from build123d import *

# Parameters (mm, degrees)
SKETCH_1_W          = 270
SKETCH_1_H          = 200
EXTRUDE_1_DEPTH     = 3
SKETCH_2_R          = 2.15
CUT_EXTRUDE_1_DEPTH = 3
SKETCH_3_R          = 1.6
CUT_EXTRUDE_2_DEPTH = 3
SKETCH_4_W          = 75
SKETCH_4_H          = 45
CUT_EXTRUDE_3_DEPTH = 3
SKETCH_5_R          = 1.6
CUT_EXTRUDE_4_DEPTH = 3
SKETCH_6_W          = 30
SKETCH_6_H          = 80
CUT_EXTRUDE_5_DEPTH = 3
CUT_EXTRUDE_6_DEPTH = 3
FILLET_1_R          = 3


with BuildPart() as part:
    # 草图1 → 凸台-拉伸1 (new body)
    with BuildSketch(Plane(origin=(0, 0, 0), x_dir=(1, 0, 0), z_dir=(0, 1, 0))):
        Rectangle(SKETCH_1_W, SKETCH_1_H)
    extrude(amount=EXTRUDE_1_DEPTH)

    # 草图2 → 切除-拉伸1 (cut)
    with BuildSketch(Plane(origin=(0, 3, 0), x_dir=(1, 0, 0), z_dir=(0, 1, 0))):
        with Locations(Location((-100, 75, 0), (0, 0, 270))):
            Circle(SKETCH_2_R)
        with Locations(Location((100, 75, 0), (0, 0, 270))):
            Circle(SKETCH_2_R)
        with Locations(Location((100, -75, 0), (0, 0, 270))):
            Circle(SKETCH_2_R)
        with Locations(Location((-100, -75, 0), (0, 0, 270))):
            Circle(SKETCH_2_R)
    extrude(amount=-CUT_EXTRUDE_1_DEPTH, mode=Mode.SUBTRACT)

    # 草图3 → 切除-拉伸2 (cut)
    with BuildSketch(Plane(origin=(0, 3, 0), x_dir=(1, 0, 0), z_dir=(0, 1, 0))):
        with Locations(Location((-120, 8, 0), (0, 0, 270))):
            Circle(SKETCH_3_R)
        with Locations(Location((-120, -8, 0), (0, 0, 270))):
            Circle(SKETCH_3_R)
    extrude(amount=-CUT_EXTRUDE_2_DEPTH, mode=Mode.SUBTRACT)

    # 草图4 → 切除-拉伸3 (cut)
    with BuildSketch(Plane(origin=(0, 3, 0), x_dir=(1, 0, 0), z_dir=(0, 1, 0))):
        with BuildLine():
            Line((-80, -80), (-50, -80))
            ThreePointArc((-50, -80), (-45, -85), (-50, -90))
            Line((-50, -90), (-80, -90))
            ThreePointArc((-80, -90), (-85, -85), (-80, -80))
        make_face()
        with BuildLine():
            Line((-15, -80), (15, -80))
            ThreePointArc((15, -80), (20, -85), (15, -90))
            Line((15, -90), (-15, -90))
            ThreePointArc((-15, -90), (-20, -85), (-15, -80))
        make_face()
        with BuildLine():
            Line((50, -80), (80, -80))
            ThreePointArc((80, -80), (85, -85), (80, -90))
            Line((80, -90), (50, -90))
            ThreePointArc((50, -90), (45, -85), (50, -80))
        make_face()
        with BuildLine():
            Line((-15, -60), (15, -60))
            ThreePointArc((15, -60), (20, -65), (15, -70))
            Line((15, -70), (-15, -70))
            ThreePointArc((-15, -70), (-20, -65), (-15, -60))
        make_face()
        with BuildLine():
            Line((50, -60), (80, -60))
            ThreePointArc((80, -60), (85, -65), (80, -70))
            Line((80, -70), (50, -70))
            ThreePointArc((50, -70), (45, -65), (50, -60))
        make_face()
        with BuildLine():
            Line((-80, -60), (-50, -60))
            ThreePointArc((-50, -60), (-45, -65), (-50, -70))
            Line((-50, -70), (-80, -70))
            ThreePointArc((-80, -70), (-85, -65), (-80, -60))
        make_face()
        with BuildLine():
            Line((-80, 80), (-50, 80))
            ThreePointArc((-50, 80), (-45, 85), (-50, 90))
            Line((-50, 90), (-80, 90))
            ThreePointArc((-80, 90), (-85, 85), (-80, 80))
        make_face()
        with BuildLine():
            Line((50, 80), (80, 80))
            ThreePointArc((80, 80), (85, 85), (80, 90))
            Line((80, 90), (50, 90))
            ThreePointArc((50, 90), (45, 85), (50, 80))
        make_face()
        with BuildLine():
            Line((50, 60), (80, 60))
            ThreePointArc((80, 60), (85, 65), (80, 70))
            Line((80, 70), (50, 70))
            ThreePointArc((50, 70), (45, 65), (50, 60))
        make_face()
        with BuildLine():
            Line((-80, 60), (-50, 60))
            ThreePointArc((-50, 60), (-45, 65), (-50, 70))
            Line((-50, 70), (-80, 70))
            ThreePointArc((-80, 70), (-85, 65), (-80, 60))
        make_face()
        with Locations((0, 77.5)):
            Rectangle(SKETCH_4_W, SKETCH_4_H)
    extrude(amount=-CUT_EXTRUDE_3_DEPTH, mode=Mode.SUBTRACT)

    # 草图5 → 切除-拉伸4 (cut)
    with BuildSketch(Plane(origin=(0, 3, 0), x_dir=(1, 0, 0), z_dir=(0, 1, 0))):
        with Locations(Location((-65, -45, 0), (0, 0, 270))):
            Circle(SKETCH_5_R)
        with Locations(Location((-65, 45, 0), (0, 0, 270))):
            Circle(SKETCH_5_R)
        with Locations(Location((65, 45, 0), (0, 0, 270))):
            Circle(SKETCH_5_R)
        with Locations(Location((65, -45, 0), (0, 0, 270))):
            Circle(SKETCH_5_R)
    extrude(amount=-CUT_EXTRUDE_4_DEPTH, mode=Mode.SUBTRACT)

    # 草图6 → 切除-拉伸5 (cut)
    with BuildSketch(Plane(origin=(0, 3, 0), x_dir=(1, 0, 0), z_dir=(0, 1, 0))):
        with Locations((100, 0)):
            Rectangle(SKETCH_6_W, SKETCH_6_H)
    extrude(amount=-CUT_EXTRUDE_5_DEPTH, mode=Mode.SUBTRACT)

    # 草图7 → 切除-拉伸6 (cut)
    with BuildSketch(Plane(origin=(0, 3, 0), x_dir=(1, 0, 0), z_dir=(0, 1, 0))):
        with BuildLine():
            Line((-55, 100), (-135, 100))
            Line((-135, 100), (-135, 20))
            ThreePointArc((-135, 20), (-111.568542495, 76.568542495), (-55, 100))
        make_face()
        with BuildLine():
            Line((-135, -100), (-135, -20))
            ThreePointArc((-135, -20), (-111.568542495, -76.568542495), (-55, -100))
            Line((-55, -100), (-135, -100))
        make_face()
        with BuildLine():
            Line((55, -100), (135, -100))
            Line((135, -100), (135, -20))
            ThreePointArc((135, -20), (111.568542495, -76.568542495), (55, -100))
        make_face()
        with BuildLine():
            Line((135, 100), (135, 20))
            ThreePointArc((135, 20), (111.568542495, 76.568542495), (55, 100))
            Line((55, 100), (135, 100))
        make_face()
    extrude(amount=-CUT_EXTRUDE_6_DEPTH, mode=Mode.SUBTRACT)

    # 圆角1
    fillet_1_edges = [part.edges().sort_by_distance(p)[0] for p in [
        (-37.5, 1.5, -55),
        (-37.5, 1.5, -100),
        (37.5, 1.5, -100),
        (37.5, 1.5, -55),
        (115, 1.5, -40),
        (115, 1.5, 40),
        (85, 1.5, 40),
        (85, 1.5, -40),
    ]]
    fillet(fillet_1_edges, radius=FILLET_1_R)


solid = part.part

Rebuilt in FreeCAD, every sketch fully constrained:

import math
import FreeCAD as App
import Part
import Sketcher
from FreeCAD import Vector


def edges_at(feature, points):
    """Names of the edges that pass closest to the given points."""
    edges = feature.Shape.Edges
    near = lambda p: min(range(len(edges)), key=lambda i: edges[i].distToShape(Part.Vertex(*p))[0])
    return sorted({f"Edge{near(p) + 1}" for p in points})

doc = App.newDocument("Part")
body = doc.addObject("PartDesign::Body", "Body")

sketch1 = body.newObject("Sketcher::SketchObject", "Sketch")
sketch1.AttachmentSupport = (doc.getObject("XZ_Plane"), [""])
sketch1.MapMode = "FlatFace"
sketch1.addGeometry([
    Part.LineSegment(Vector(-135, -100, 0), Vector(-135, 100, 0)),
    Part.LineSegment(Vector(-135, 100, 0), Vector(135, 100, 0)),
    Part.LineSegment(Vector(135, 100, 0), Vector(135, -100, 0)),
    Part.LineSegment(Vector(135, -100, 0), Vector(-135, -100, 0)),
], False)
sketch1.addConstraint([
    Sketcher.Constraint("Coincident", 0, 2, 1, 1),
    Sketcher.Constraint("Coincident", 1, 2, 2, 1),
    Sketcher.Constraint("Coincident", 2, 2, 3, 1),
    Sketcher.Constraint("Coincident", 3, 2, 0, 1),
    Sketcher.Constraint("Vertical", 0),
    Sketcher.Constraint("Horizontal", 1),
    Sketcher.Constraint("Vertical", 2),
    Sketcher.Constraint("Horizontal", 3),
    Sketcher.Constraint("Symmetric", 0, 2, 2, 2, -1, 1),
    Sketcher.Constraint("DistanceX", 1, 1, 1, 2, 270.0),
    Sketcher.Constraint("DistanceY", 0, 1, 0, 2, 200.0),
])
pad1 = body.newObject("PartDesign::Pad", "Pad")
pad1.Profile = sketch1
pad1.Length = 3
pad1.Reversed = True

sketch2 = body.newObject("Sketcher::SketchObject", "Sketch001")
sketch2.AttachmentSupport = (doc.getObject("XZ_Plane"), [""])
sketch2.MapMode = "FlatFace"
sketch2.AttachmentOffset = App.Placement(Vector(0, 0, -3), App.Rotation())
sketch2.addGeometry([
    Part.Circle(Vector(-100, -75, 0), Vector(0, 0, 1), 2.1),
    Part.Circle(Vector(100, -75, 0), Vector(0, 0, 1), 2.1),
    Part.Circle(Vector(100, 75, 0), Vector(0, 0, 1), 2.1),
    Part.Circle(Vector(-100, 75, 0), Vector(0, 0, 1), 2.1),
], False)
sketch2.addConstraint([
    Sketcher.Constraint("Equal", 0, 1),
    Sketcher.Constraint("Equal", 1, 2),
    Sketcher.Constraint("Equal", 2, 3),
    Sketcher.Constraint("Symmetric", 0, 3, 2, 3, -1, 1),
    Sketcher.Constraint("Symmetric", 1, 3, 3, 3, -1, 1),
    Sketcher.Constraint("Symmetric", 0, 3, 1, 3, -2),
    Sketcher.Constraint("Diameter", 0, 4.3),
    Sketcher.Constraint("DistanceX", 0, 3, -1, 1, 100.0),
    Sketcher.Constraint("DistanceY", 0, 3, -1, 1, 75.0),
])
pocket1 = body.newObject("PartDesign::Pocket", "Pocket")
pocket1.Profile = sketch2
pocket1.Length = 3
pocket1.Reversed = True

sketch3 = body.newObject("Sketcher::SketchObject", "Sketch002")
sketch3.AttachmentSupport = (doc.getObject("XZ_Plane"), [""])
sketch3.MapMode = "FlatFace"
sketch3.AttachmentOffset = App.Placement(Vector(0, 0, -3), App.Rotation())
sketch3.addGeometry([
    Part.Circle(Vector(-120, -8, 0), Vector(0, 0, 1), 1.6),
    Part.Circle(Vector(-120, 8, 0), Vector(0, 0, 1), 1.6),
], False)
sketch3.addConstraint([
    Sketcher.Constraint("Equal", 0, 1),
    Sketcher.Constraint("Symmetric", 0, 3, 1, 3, -1),
    Sketcher.Constraint("Diameter", 0, 3.2),
    Sketcher.Constraint("DistanceX", 0, 3, -1, 1, 120.0),
    Sketcher.Constraint("DistanceY", 0, 3, -1, 1, 8.0),
])
pocket2 = body.newObject("PartDesign::Pocket", "Pocket001")
pocket2.Profile = sketch3
pocket2.Length = 3
pocket2.Reversed = True

sketch4 = body.newObject("Sketcher::SketchObject", "Sketch003")
sketch4.AttachmentSupport = (doc.getObject("XZ_Plane"), [""])
sketch4.MapMode = "FlatFace"
sketch4.AttachmentOffset = App.Placement(Vector(0, 0, -3), App.Rotation())
sketch4.addGeometry([
    Part.LineSegment(Vector(-50, 80, 0), Vector(-80, 80, 0)),
    Part.ArcOfCircle(Part.Circle(Vector(-80, 85, 0), Vector(0, 0, 1), 5), math.radians(90), math.radians(270)),
    Part.LineSegment(Vector(-80, 90, 0), Vector(-50, 90, 0)),
    Part.ArcOfCircle(Part.Circle(Vector(-50, 85, 0), Vector(0, 0, 1), 5), math.radians(-90), math.radians(90)),
    Part.LineSegment(Vector(15, 80, 0), Vector(-15, 80, 0)),
    Part.ArcOfCircle(Part.Circle(Vector(-15, 85, 0), Vector(0, 0, 1), 5), math.radians(90), math.radians(270)),
    Part.LineSegment(Vector(-15, 90, 0), Vector(15, 90, 0)),
    Part.ArcOfCircle(Part.Circle(Vector(15, 85, 0), Vector(0, 0, 1), 5), math.radians(-90), math.radians(90)),
    Part.LineSegment(Vector(80, 80, 0), Vector(50, 80, 0)),
    Part.ArcOfCircle(Part.Circle(Vector(50, 85, 0), Vector(0, 0, 1), 5), math.radians(90), math.radians(270)),
    Part.LineSegment(Vector(50, 90, 0), Vector(80, 90, 0)),
    Part.ArcOfCircle(Part.Circle(Vector(80, 85, 0), Vector(0, 0, 1), 5), math.radians(-90), math.radians(90)),
    Part.LineSegment(Vector(15, 60, 0), Vector(-15, 60, 0)),
    Part.ArcOfCircle(Part.Circle(Vector(-15, 65, 0), Vector(0, 0, 1), 5), math.radians(90), math.radians(270)),
    Part.LineSegment(Vector(-15, 70, 0), Vector(15, 70, 0)),
    Part.ArcOfCircle(Part.Circle(Vector(15, 65, 0), Vector(0, 0, 1), 5), math.radians(-90), math.radians(90)),
    Part.LineSegment(Vector(80, 60, 0), Vector(50, 60, 0)),
    Part.ArcOfCircle(Part.Circle(Vector(50, 65, 0), Vector(0, 0, 1), 5), math.radians(90), math.radians(270)),
    Part.LineSegment(Vector(50, 70, 0), Vector(80, 70, 0)),
    Part.ArcOfCircle(Part.Circle(Vector(80, 65, 0), Vector(0, 0, 1), 5), math.radians(-90), math.radians(90)),
    Part.LineSegment(Vector(-50, 60, 0), Vector(-80, 60, 0)),
    Part.ArcOfCircle(Part.Circle(Vector(-80, 65, 0), Vector(0, 0, 1), 5), math.radians(90), math.radians(270)),
    Part.LineSegment(Vector(-80, 70, 0), Vector(-50, 70, 0)),
    Part.ArcOfCircle(Part.Circle(Vector(-50, 65, 0), Vector(0, 0, 1), 5), math.radians(-90), math.radians(90)),
    Part.LineSegment(Vector(-80, -80, 0), Vector(-50, -80, 0)),
    Part.ArcOfCircle(Part.Circle(Vector(-50, -85, 0), Vector(0, 0, 1), 5), math.radians(-90), math.radians(90)),
    Part.LineSegment(Vector(-50, -90, 0), Vector(-80, -90, 0)),
    Part.ArcOfCircle(Part.Circle(Vector(-80, -85, 0), Vector(0, 0, 1), 5), math.radians(90), math.radians(270)),
    Part.LineSegment(Vector(50, -80, 0), Vector(80, -80, 0)),
    Part.ArcOfCircle(Part.Circle(Vector(80, -85, 0), Vector(0, 0, 1), 5), math.radians(-90), math.radians(90)),
    Part.LineSegment(Vector(80, -90, 0), Vector(50, -90, 0)),
    Part.ArcOfCircle(Part.Circle(Vector(50, -85, 0), Vector(0, 0, 1), 5), math.radians(90), math.radians(270)),
    Part.LineSegment(Vector(50, -60, 0), Vector(80, -60, 0)),
    Part.ArcOfCircle(Part.Circle(Vector(80, -65, 0), Vector(0, 0, 1), 5), math.radians(-90), math.radians(90)),
    Part.LineSegment(Vector(80, -70, 0), Vector(50, -70, 0)),
    Part.ArcOfCircle(Part.Circle(Vector(50, -65, 0), Vector(0, 0, 1), 5), math.radians(90), math.radians(270)),
    Part.LineSegment(Vector(-80, -60, 0), Vector(-50, -60, 0)),
    Part.ArcOfCircle(Part.Circle(Vector(-50, -65, 0), Vector(0, 0, 1), 5), math.radians(-90), math.radians(90)),
    Part.LineSegment(Vector(-50, -70, 0), Vector(-80, -70, 0)),
    Part.ArcOfCircle(Part.Circle(Vector(-80, -65, 0), Vector(0, 0, 1), 5), math.radians(90), math.radians(270)),
    Part.LineSegment(Vector(-38, -100, 0), Vector(-38, -55, 0)),
    Part.LineSegment(Vector(-38, -55, 0), Vector(38, -55, 0)),
    Part.LineSegment(Vector(38, -55, 0), Vector(38, -100, 0)),
    Part.LineSegment(Vector(38, -100, 0), Vector(-38, -100, 0)),
], False)
sketch4.addConstraint([
    Sketcher.Constraint("Tangent", 0, 2, 1, 2),
    Sketcher.Constraint("Tangent", 1, 1, 2, 1),
    Sketcher.Constraint("Tangent", 2, 2, 3, 2),
    Sketcher.Constraint("Tangent", 3, 1, 0, 1),
    Sketcher.Constraint("Tangent", 4, 2, 5, 2),
    Sketcher.Constraint("Tangent", 5, 1, 6, 1),
    Sketcher.Constraint("Tangent", 6, 2, 7, 2),
    Sketcher.Constraint("Tangent", 7, 1, 4, 1),
    Sketcher.Constraint("Tangent", 8, 2, 9, 2),
    Sketcher.Constraint("Tangent", 9, 1, 10, 1),
    Sketcher.Constraint("Tangent", 10, 2, 11, 2),
    Sketcher.Constraint("Tangent", 11, 1, 8, 1),
    Sketcher.Constraint("Tangent", 12, 2, 13, 2),
    Sketcher.Constraint("Tangent", 13, 1, 14, 1),
    Sketcher.Constraint("Tangent", 14, 2, 15, 2),
    Sketcher.Constraint("Tangent", 15, 1, 12, 1),
    Sketcher.Constraint("Tangent", 16, 2, 17, 2),
    Sketcher.Constraint("Tangent", 17, 1, 18, 1),
    Sketcher.Constraint("Tangent", 18, 2, 19, 2),
    Sketcher.Constraint("Tangent", 19, 1, 16, 1),
    Sketcher.Constraint("Tangent", 20, 2, 21, 2),
    Sketcher.Constraint("Tangent", 21, 1, 22, 1),
    Sketcher.Constraint("Tangent", 22, 2, 23, 2),
    Sketcher.Constraint("Tangent", 23, 1, 20, 1),
    Sketcher.Constraint("Tangent", 24, 2, 25, 2),
    Sketcher.Constraint("Tangent", 25, 1, 26, 1),
    Sketcher.Constraint("Tangent", 26, 2, 27, 2),
    Sketcher.Constraint("Tangent", 27, 1, 24, 1),
    Sketcher.Constraint("Tangent", 28, 2, 29, 2),
    Sketcher.Constraint("Tangent", 29, 1, 30, 1),
    Sketcher.Constraint("Tangent", 30, 2, 31, 2),
    Sketcher.Constraint("Tangent", 31, 1, 28, 1),
    Sketcher.Constraint("Tangent", 32, 2, 33, 2),
    Sketcher.Constraint("Tangent", 33, 1, 34, 1),
    Sketcher.Constraint("Tangent", 34, 2, 35, 2),
    Sketcher.Constraint("Tangent", 35, 1, 32, 1),
    Sketcher.Constraint("Tangent", 36, 2, 37, 2),
    Sketcher.Constraint("Tangent", 37, 1, 38, 1),
    Sketcher.Constraint("Tangent", 38, 2, 39, 2),
    Sketcher.Constraint("Tangent", 39, 1, 36, 1),
    Sketcher.Constraint("Coincident", 40, 2, 41, 1),
    Sketcher.Constraint("Coincident", 41, 2, 42, 1),
    Sketcher.Constraint("Coincident", 42, 2, 43, 1),
    Sketcher.Constraint("Coincident", 43, 2, 40, 1),
    Sketcher.Constraint("Horizontal", 0),
    Sketcher.Constraint("Horizontal", 2),
    Sketcher.Constraint("Horizontal", 4),
    Sketcher.Constraint("Horizontal", 6),
    Sketcher.Constraint("Horizontal", 8),
    Sketcher.Constraint("Horizontal", 10),
    Sketcher.Constraint("Horizontal", 12),
    Sketcher.Constraint("Horizontal", 14),
    Sketcher.Constraint("Horizontal", 16),
    Sketcher.Constraint("Horizontal", 18),
    Sketcher.Constraint("Horizontal", 20),
    Sketcher.Constraint("Horizontal", 22),
    Sketcher.Constraint("Horizontal", 24),
    Sketcher.Constraint("Horizontal", 26),
    Sketcher.Constraint("Horizontal", 28),
    Sketcher.Constraint("Horizontal", 30),
    Sketcher.Constraint("Horizontal", 32),
    Sketcher.Constraint("Horizontal", 34),
    Sketcher.Constraint("Horizontal", 36),
    Sketcher.Constraint("Horizontal", 38),
    Sketcher.Constraint("Vertical", 40),
    Sketcher.Constraint("Horizontal", 41),
    Sketcher.Constraint("Vertical", 42),
    Sketcher.Constraint("Horizontal", 43),
    Sketcher.Constraint("Equal", 3, 5),
    Sketcher.Constraint("Equal", 7, 9),
    Sketcher.Constraint("Equal", 11, 13),
    Sketcher.Constraint("Equal", 15, 17),
    Sketcher.Constraint("Equal", 19, 21),
    Sketcher.Constraint("Equal", 23, 25),
    Sketcher.Constraint("Equal", 27, 29),
    Sketcher.Constraint("Equal", 31, 33),
    Sketcher.Constraint("Equal", 35, 37),
    Sketcher.Constraint("Symmetric", 9, 3, 25, 3, -1, 1),
    Sketcher.Constraint("Symmetric", 1, 3, 29, 3, -1, 1),
    Sketcher.Constraint("Symmetric", 21, 3, 33, 3, -1, 1),
    Sketcher.Constraint("Symmetric", 17, 3, 37, 3, -1, 1),
    Sketcher.Constraint("Symmetric", 3, 3, 9, 3, -2),
    Sketcher.Constraint("Symmetric", 19, 3, 21, 3, -2),
    Sketcher.Constraint("Horizontal", 3, 3, 5, 3),
    Sketcher.Constraint("Horizontal", 15, 3, 17, 3),
    Sketcher.Constraint("Vertical", 5, 3, 13, 3),
    Sketcher.Constraint("Vertical", 7, 3, 15, 3),
    Sketcher.Constraint("Vertical", 9, 3, 17, 3),
    Sketcher.Constraint("Vertical", 11, 3, 19, 3),
    Sketcher.Constraint("Vertical", 1, 3, 21, 3),
    Sketcher.Constraint("Vertical", 3, 3, 23, 3),
    Sketcher.Constraint("Vertical", 21, 3, 27, 3),
    Sketcher.Constraint("Vertical", 17, 3, 31, 3),
    Sketcher.Constraint("Vertical", 31, 3, 35, 3),
    Sketcher.Constraint("Vertical", 27, 3, 39, 3),
    Sketcher.Constraint("Equal", 2, 4),
    Sketcher.Constraint("Radius", 1, 5.0),
    Sketcher.Constraint("DistanceX", 0, 2, 0, 1, 30.0),
    Sketcher.Constraint("DistanceX", 41, 1, 41, 2, 75.0),
    Sketcher.Constraint("DistanceY", 40, 1, 40, 2, 45.0),
    Sketcher.Constraint("DistanceX", 1, 3, -1, 1, 80.0),
    Sketcher.Constraint("DistanceY", -1, 1, 1, 3, 85.0),
    Sketcher.Constraint("DistanceX", 5, 3, -1, 1, 15.0),
    Sketcher.Constraint("DistanceY", -1, 1, 13, 3, 65.0),
    Sketcher.Constraint("DistanceY", 40, 2, -1, 1, 55.0),
    Sketcher.Constraint("DistanceX", 40, 2, -1, 1, 37.5),
])
pocket3 = body.newObject("PartDesign::Pocket", "Pocket002")
pocket3.Profile = sketch4
pocket3.Length = 3
pocket3.Reversed = True

sketch5 = body.newObject("Sketcher::SketchObject", "Sketch004")
sketch5.AttachmentSupport = (doc.getObject("XZ_Plane"), [""])
sketch5.MapMode = "FlatFace"
sketch5.AttachmentOffset = App.Placement(Vector(0, 0, -3), App.Rotation())
sketch5.addGeometry([
    Part.Circle(Vector(-65, 45, 0), Vector(0, 0, 1), 1.6),
    Part.Circle(Vector(-65, -45, 0), Vector(0, 0, 1), 1.6),
    Part.Circle(Vector(65, -45, 0), Vector(0, 0, 1), 1.6),
    Part.Circle(Vector(65, 45, 0), Vector(0, 0, 1), 1.6),
], False)
sketch5.addConstraint([
    Sketcher.Constraint("Equal", 0, 1),
    Sketcher.Constraint("Equal", 1, 2),
    Sketcher.Constraint("Equal", 2, 3),
    Sketcher.Constraint("Symmetric", 0, 3, 2, 3, -1, 1),
    Sketcher.Constraint("Symmetric", 1, 3, 3, 3, -1, 1),
    Sketcher.Constraint("Symmetric", 1, 3, 2, 3, -2),
    Sketcher.Constraint("Diameter", 0, 3.2),
    Sketcher.Constraint("DistanceX", 0, 3, -1, 1, 65.0),
    Sketcher.Constraint("DistanceY", -1, 1, 0, 3, 45.0),
])
pocket4 = body.newObject("PartDesign::Pocket", "Pocket003")
pocket4.Profile = sketch5
pocket4.Length = 3
pocket4.Reversed = True

sketch6 = body.newObject("Sketcher::SketchObject", "Sketch005")
sketch6.AttachmentSupport = (doc.getObject("XZ_Plane"), [""])
sketch6.MapMode = "FlatFace"
sketch6.AttachmentOffset = App.Placement(Vector(0, 0, -3), App.Rotation())
sketch6.addGeometry([
    Part.LineSegment(Vector(85, -40, 0), Vector(85, 40, 0)),
    Part.LineSegment(Vector(85, 40, 0), Vector(115, 40, 0)),
    Part.LineSegment(Vector(115, 40, 0), Vector(115, -40, 0)),
    Part.LineSegment(Vector(115, -40, 0), Vector(85, -40, 0)),
], False)
sketch6.addConstraint([
    Sketcher.Constraint("Coincident", 0, 2, 1, 1),
    Sketcher.Constraint("Coincident", 1, 2, 2, 1),
    Sketcher.Constraint("Coincident", 2, 2, 3, 1),
    Sketcher.Constraint("Coincident", 3, 2, 0, 1),
    Sketcher.Constraint("Vertical", 0),
    Sketcher.Constraint("Horizontal", 1),
    Sketcher.Constraint("Vertical", 2),
    Sketcher.Constraint("Horizontal", 3),
    Sketcher.Constraint("DistanceX", 1, 1, 1, 2, 30.0),
    Sketcher.Constraint("DistanceY", 0, 1, 0, 2, 80.0),
    Sketcher.Constraint("DistanceX", -1, 1, 0, 2, 85.0),
    Sketcher.Constraint("DistanceY", -1, 1, 0, 2, 40.0),
])
pocket5 = body.newObject("PartDesign::Pocket", "Pocket004")
pocket5.Profile = sketch6
pocket5.Length = 3
pocket5.Reversed = True

sketch7 = body.newObject("Sketcher::SketchObject", "Sketch006")
sketch7.AttachmentSupport = (doc.getObject("XZ_Plane"), [""])
sketch7.MapMode = "FlatFace"
sketch7.AttachmentOffset = App.Placement(Vector(0, 0, -3), App.Rotation())
sketch7.addGeometry([
    Part.LineSegment(Vector(-55, -100, 0), Vector(-135, -100, 0)),
    Part.LineSegment(Vector(-135, -100, 0), Vector(-135, -20, 0)),
    Part.ArcOfCircle(Part.Circle(Vector(-55, -20, 0), Vector(0, 0, 1), 80), math.radians(180), math.radians(270)),
    Part.LineSegment(Vector(-135, 20, 0), Vector(-135, 100, 0)),
    Part.LineSegment(Vector(-135, 100, 0), Vector(-55, 100, 0)),
    Part.ArcOfCircle(Part.Circle(Vector(-55, 20, 0), Vector(0, 0, 1), 80), math.radians(90), math.radians(180)),
    Part.LineSegment(Vector(55, 100, 0), Vector(135, 100, 0)),
    Part.LineSegment(Vector(135, 100, 0), Vector(135, 20, 0)),
    Part.ArcOfCircle(Part.Circle(Vector(55, 20, 0), Vector(0, 0, 1), 80), math.radians(0), math.radians(90)),
    Part.LineSegment(Vector(135, -20, 0), Vector(135, -100, 0)),
    Part.LineSegment(Vector(135, -100, 0), Vector(55, -100, 0)),
    Part.ArcOfCircle(Part.Circle(Vector(55, -20, 0), Vector(0, 0, 1), 80), math.radians(-90), math.radians(0)),
], False)
sketch7.addConstraint([
    Sketcher.Constraint("Coincident", 0, 2, 1, 1),
    Sketcher.Constraint("Tangent", 1, 2, 2, 1),
    Sketcher.Constraint("Tangent", 2, 2, 0, 1),
    Sketcher.Constraint("Coincident", 3, 2, 4, 1),
    Sketcher.Constraint("Tangent", 4, 2, 5, 1),
    Sketcher.Constraint("Tangent", 5, 2, 3, 1),
    Sketcher.Constraint("Coincident", 6, 2, 7, 1),
    Sketcher.Constraint("Tangent", 7, 2, 8, 1),
    Sketcher.Constraint("Tangent", 8, 2, 6, 1),
    Sketcher.Constraint("Coincident", 9, 2, 10, 1),
    Sketcher.Constraint("Tangent", 10, 2, 11, 1),
    Sketcher.Constraint("Tangent", 11, 2, 9, 1),
    Sketcher.Constraint("Horizontal", 0),
    Sketcher.Constraint("Vertical", 1),
    Sketcher.Constraint("Vertical", 3),
    Sketcher.Constraint("Horizontal", 4),
    Sketcher.Constraint("Horizontal", 6),
    Sketcher.Constraint("Vertical", 7),
    Sketcher.Constraint("Vertical", 9),
    Sketcher.Constraint("Horizontal", 10),
    Sketcher.Constraint("Equal", 2, 5),
    Sketcher.Constraint("Equal", 5, 8),
    Sketcher.Constraint("Equal", 8, 11),
    Sketcher.Constraint("Symmetric", 2, 3, 8, 3, -1, 1),
    Sketcher.Constraint("Symmetric", 5, 3, 11, 3, -1, 1),
    Sketcher.Constraint("Symmetric", 5, 3, 8, 3, -2),
    Sketcher.Constraint("Radius", 2, 80.0),
    Sketcher.Constraint("DistanceX", 2, 3, -1, 1, 55.0),
    Sketcher.Constraint("DistanceY", 2, 3, -1, 1, 20.0),
])
pocket6 = body.newObject("PartDesign::Pocket", "Pocket005")
pocket6.Profile = sketch7
pocket6.Length = 3
pocket6.Reversed = True
doc.recompute()

fillet = body.newObject("PartDesign::Fillet", "Fillet")
fillet.Base = (pocket6, edges_at(pocket6, [
    (-37.5, 1.5, -55),
    (-37.5, 1.5, -100),
    (37.5, 1.5, -100),
    (37.5, 1.5, -55),
    (115, 1.5, -40),
    (115, 1.5, 40),
    (85, 1.5, 40),
    (85, 1.5, -40),
]))
fillet.Radius = 3

doc.recompute()
